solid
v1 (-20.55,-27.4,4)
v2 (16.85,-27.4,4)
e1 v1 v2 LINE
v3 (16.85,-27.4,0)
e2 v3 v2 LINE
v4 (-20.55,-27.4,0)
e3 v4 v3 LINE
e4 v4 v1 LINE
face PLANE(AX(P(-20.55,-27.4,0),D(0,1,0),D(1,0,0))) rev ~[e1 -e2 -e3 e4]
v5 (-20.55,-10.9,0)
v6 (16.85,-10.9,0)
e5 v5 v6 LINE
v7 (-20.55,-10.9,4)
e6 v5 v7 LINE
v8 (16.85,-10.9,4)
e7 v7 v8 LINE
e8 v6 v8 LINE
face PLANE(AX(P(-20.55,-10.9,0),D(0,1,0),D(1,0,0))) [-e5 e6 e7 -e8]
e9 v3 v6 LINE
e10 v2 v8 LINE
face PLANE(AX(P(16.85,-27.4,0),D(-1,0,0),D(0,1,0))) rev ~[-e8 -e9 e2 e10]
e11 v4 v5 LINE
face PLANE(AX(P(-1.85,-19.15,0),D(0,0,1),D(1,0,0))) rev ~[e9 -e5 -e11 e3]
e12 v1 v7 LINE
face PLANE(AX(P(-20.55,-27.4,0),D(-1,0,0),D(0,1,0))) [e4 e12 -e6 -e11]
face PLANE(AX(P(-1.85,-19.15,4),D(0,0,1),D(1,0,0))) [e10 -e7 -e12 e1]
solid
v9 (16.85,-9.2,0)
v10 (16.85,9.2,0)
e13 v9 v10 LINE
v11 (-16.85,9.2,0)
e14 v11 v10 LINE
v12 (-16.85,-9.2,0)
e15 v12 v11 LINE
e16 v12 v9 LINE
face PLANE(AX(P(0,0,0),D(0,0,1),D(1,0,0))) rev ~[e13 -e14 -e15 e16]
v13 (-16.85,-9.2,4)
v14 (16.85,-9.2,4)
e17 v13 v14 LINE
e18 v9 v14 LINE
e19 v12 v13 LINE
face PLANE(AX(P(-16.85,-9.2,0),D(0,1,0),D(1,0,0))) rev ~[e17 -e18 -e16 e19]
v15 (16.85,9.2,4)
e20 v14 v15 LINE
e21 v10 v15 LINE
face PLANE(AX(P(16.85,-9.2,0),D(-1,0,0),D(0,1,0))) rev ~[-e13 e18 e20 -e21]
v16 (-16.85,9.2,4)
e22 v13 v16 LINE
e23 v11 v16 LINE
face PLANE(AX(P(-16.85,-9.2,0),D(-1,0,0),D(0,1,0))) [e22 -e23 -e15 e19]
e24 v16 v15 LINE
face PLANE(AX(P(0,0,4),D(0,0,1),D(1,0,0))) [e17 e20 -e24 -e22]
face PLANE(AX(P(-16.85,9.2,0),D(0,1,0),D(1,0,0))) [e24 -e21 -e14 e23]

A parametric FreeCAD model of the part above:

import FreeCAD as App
import Part
import Sketcher


def add_polygon(sketch, points):
    """Adds a closed chain of lines whose ends are joined by coincident constraints."""
    first, n = sketch.GeometryCount, len(points)
    for a, b in zip(points, points[1:] + points[:1]):
        sketch.addGeometry(Part.LineSegment(App.Vector(*a, 0), App.Vector(*b, 0)), False)
    for i in range(n):
        sketch.addConstraint(Sketcher.Constraint("Coincident", first + i, 2, first + (i + 1) % n, 1))

doc = App.newDocument("Part")
params = doc.addObject("Spreadsheet::Sheet", "Params")
for row, (alias, value) in enumerate([
    ("sketch1_width", "33.7 mm"),
    ("sketch1_width2", "37.4 mm"),
    ("sketch1_height", "18.4 mm"),
    ("sketch1_height2", "16.5 mm"),
    ("pad1_length", "4 mm"),
], start=1):
    params.set(f"A{row}", alias)
    params.set(f"B{row}", "=" + value)
    params.setAlias(f"B{row}", alias)

body = doc.addObject("PartDesign::Body", "Body")
body.AllowCompound = True

# Sketch on XY plane
sketch1 = body.newObject("Sketcher::SketchObject", "Sketch")
sketch1.AttachmentSupport = (doc.getObject("XY_Plane"), [""])
sketch1.MapMode = "FlatFace"
add_polygon(sketch1, [(-16.85, 9.2), (-16.85, -9.2), (16.85, -9.2), (16.85, 9.2)])  # lines 0-3
add_polygon(sketch1, [(-20.55, -10.9), (-20.55, -27.4), (16.85, -27.4), (16.85, -10.9)])  # lines 4-7
sketch1.addConstraint([
    Sketcher.Constraint("Vertical", 0),
    Sketcher.Constraint("Horizontal", 1),
    Sketcher.Constraint("Vertical", 2),
    Sketcher.Constraint("Horizontal", 3),
    Sketcher.Constraint("Vertical", 4),
    Sketcher.Constraint("Horizontal", 5),
    Sketcher.Constraint("Vertical", 6),
    Sketcher.Constraint("Horizontal", 7),
    Sketcher.Constraint("Symmetric", 0, 2, 2, 2, -1, 1),
    Sketcher.Constraint("Vertical", 2, 2, 5, 2),
    Sketcher.Constraint("DistanceX", 1, 1, 1, 2, 33.7),
    Sketcher.Constraint("DistanceX", 5, 1, 5, 2, 37.4),
    Sketcher.Constraint("DistanceY", 0, 2, 0, 1, 18.4),
    Sketcher.Constraint("DistanceY", 4, 2, 4, 1, 16.5),
    Sketcher.Constraint("DistanceY", 4, 2, -1, 1, 27.4),
])
sketch1.setExpression("Constraints[18]", "Params.sketch1_width")
sketch1.setExpression("Constraints[19]", "Params.sketch1_width2")
sketch1.setExpression("Constraints[20]", "Params.sketch1_height")
sketch1.setExpression("Constraints[21]", "Params.sketch1_height2")
pad1 = body.newObject("PartDesign::Pad", "Pad")
pad1.Profile = sketch1
pad1.setExpression("Length", "Params.pad1_length")

doc.recompute()
